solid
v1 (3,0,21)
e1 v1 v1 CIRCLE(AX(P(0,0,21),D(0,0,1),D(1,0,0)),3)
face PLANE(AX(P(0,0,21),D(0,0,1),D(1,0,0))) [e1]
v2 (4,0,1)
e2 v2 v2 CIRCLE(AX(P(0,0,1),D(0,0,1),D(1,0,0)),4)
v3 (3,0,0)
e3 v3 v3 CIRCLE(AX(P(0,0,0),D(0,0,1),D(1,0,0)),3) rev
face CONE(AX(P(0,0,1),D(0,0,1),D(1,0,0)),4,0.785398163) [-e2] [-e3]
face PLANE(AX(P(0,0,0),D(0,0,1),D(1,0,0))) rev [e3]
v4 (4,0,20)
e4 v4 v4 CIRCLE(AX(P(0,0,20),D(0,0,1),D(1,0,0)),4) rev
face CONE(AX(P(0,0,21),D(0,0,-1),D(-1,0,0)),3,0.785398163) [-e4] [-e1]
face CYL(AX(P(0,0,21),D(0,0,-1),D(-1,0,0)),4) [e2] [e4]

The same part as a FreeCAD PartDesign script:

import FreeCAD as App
import Part
import Sketcher

V = App.Vector
Q = App.Units.Quantity


def edges_at(feature, points):
    """Names of the edges that pass closest to the given points."""
    edges = feature.Shape.Edges
    near = lambda p: min(range(len(edges)), key=lambda i: edges[i].distToShape(Part.Vertex(*p))[0])
    return sorted({f"Edge{near(p) + 1}" for p in points})

doc = App.newDocument("Part")
body = doc.addObject("PartDesign::Body", "Body")

sketch1 = body.newObject("Sketcher::SketchObject", "Sketch")
sketch1.AttachmentSupport = (doc.getObject("XY_Plane"), [""])
sketch1.MapMode = "FlatFace"
sketch1.addGeometry(Part.Circle(V(0, 0, 0), V(0, 0, 1), 4), False)
sketch1.addConstraint(Sketcher.Constraint("Coincident", 0, 3, -1, 1))
sketch1.addConstraint(Sketcher.Constraint("Diameter", 0, Q("8 mm")))
pad1 = body.newObject("PartDesign::Pad", "Pad")
pad1.Profile = sketch1
pad1.Length = 21
doc.recompute()

chamfer = body.newObject("PartDesign::Chamfer", "Chamfer")
chamfer.Base = (pad1, edges_at(pad1, [(-4, 0, 0), (-4, 0, 21)]))
chamfer.Size = 1

doc.recompute()
